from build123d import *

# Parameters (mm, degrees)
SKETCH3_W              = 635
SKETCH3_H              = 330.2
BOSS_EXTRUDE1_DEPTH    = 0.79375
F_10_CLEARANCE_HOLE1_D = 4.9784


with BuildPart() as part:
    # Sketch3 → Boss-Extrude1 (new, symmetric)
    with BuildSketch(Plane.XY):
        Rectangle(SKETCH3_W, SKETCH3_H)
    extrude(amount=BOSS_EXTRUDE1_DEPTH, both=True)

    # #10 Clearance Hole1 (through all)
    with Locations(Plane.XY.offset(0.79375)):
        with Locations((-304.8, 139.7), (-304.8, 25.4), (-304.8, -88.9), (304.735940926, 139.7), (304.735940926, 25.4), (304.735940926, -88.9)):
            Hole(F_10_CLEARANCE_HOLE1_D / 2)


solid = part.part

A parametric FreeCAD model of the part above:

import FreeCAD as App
import Part
import Sketcher

V = App.Vector
Q = App.Units.Quantity

doc = App.newDocument("Part")
body = doc.addObject("PartDesign::Body", "Body")

sketch1 = body.newObject("Sketcher::SketchObject", "Sketch")
sketch1.AttachmentSupport = (doc.getObject("XY_Plane"), [""])
sketch1.MapMode = "FlatFace"
sketch1.addGeometry([
    Part.LineSegment(V(-317.5, 165.1, 0), V(-317.5, -165.1, 0)),
    Part.LineSegment(V(-317.5, -165.1, 0), V(317.5, -165.1, 0)),
    Part.LineSegment(V(317.5, -165.1, 0), V(317.5, 165.1, 0)),
    Part.LineSegment(V(317.5, 165.1, 0), V(-317.5, 165.1, 0)),
], False)
sketch1.addConstraint([
    Sketcher.Constraint("Coincident", 0, 2, 1, 1),
    Sketcher.Constraint("Coincident", 1, 2, 2, 1),
    Sketcher.Constraint("Coincident", 2, 2, 3, 1),
    Sketcher.Constraint("Coincident", 3, 2, 0, 1),
    Sketcher.Constraint("Vertical", 0),
    Sketcher.Constraint("Horizontal", 1),
    Sketcher.Constraint("Vertical", 2),
    Sketcher.Constraint("Horizontal", 3),
    Sketcher.Constraint("Symmetric", 0, 2, 2, 2, -1, 1),
    Sketcher.Constraint("DistanceX", 1, 1, 1, 2, Q("25 in")),
    Sketcher.Constraint("DistanceY", 0, 2, 0, 1, Q("13 in")),
])
pad1 = body.newObject("PartDesign::Pad", "Pad")
pad1.Profile = sketch1
pad1.Length = Q("0.0625 in")
pad1.Midplane = True

sketch2 = body.newObject("Sketcher::SketchObject", "Sketch001")
sketch2.AttachmentSupport = (doc.getObject("XY_Plane"), [""])
sketch2.MapMode = "FlatFace"
sketch2.AttachmentOffset = App.Placement(V(0, 0, 0.03125 * 25.4), App.Rotation())
sketch2.addGeometry([
    Part.Circle(V(-304.8, 139.7, 0), V(0, 0, 1), 2.4892),
    Part.Circle(V(-304.8, 25.4, 0), V(0, 0, 1), 2.4892),
    Part.Circle(V(-304.8, -88.9, 0), V(0, 0, 1), 2.4892),
    Part.Circle(V(304.735941, 139.7, 0), V(0, 0, 1), 2.4892),
    Part.Circle(V(304.735941, 25.4, 0), V(0, 0, 1), 2.4892),
    Part.Circle(V(304.735941, -88.9, 0), V(0, 0, 1), 2.4892),
], False)
sketch2.addConstraint([
    Sketcher.Constraint("Equal", 0, 1),
    Sketcher.Constraint("Equal", 1, 2),
    Sketcher.Constraint("Equal", 2, 3),
    Sketcher.Constraint("Equal", 3, 4),
    Sketcher.Constraint("Equal", 4, 5),
    Sketcher.Constraint("Horizontal", 0, 3, 3, 3),
    Sketcher.Constraint("Horizontal", 1, 3, 4, 3),
    Sketcher.Constraint("Horizontal", 2, 3, 5, 3),
    Sketcher.Constraint("Vertical", 0, 3, 1, 3),
    Sketcher.Constraint("Vertical", 1, 3, 2, 3),
    Sketcher.Constraint("Vertical", 3, 3, 4, 3),
    Sketcher.Constraint("Vertical", 4, 3, 5, 3),
    Sketcher.Constraint("Diameter", 0, Q("0.196 in")),
    Sketcher.Constraint("DistanceX", 0, 3, -1, 1, Q("12 in")),
    Sketcher.Constraint("DistanceY", -1, 1, 1, 3, Q("1 in")),
    Sketcher.Constraint("DistanceY", 2, 3, 0, 3, Q("9 in")),
    Sketcher.Constraint("DistanceY", -1, 1, 0, 3, Q("5.5 in")),
    Sketcher.Constraint("DistanceX", -1, 1, 3, 3, Q("304.735941 mm")),
])
doc.recompute()
hole = body.newObject("PartDesign::Hole", "Hole")
hole.Profile = sketch2
hole.ThreadType = "None"
hole.Diameter = Q("0.196 in")
hole.DepthType = "ThroughAll"

doc.recompute()
